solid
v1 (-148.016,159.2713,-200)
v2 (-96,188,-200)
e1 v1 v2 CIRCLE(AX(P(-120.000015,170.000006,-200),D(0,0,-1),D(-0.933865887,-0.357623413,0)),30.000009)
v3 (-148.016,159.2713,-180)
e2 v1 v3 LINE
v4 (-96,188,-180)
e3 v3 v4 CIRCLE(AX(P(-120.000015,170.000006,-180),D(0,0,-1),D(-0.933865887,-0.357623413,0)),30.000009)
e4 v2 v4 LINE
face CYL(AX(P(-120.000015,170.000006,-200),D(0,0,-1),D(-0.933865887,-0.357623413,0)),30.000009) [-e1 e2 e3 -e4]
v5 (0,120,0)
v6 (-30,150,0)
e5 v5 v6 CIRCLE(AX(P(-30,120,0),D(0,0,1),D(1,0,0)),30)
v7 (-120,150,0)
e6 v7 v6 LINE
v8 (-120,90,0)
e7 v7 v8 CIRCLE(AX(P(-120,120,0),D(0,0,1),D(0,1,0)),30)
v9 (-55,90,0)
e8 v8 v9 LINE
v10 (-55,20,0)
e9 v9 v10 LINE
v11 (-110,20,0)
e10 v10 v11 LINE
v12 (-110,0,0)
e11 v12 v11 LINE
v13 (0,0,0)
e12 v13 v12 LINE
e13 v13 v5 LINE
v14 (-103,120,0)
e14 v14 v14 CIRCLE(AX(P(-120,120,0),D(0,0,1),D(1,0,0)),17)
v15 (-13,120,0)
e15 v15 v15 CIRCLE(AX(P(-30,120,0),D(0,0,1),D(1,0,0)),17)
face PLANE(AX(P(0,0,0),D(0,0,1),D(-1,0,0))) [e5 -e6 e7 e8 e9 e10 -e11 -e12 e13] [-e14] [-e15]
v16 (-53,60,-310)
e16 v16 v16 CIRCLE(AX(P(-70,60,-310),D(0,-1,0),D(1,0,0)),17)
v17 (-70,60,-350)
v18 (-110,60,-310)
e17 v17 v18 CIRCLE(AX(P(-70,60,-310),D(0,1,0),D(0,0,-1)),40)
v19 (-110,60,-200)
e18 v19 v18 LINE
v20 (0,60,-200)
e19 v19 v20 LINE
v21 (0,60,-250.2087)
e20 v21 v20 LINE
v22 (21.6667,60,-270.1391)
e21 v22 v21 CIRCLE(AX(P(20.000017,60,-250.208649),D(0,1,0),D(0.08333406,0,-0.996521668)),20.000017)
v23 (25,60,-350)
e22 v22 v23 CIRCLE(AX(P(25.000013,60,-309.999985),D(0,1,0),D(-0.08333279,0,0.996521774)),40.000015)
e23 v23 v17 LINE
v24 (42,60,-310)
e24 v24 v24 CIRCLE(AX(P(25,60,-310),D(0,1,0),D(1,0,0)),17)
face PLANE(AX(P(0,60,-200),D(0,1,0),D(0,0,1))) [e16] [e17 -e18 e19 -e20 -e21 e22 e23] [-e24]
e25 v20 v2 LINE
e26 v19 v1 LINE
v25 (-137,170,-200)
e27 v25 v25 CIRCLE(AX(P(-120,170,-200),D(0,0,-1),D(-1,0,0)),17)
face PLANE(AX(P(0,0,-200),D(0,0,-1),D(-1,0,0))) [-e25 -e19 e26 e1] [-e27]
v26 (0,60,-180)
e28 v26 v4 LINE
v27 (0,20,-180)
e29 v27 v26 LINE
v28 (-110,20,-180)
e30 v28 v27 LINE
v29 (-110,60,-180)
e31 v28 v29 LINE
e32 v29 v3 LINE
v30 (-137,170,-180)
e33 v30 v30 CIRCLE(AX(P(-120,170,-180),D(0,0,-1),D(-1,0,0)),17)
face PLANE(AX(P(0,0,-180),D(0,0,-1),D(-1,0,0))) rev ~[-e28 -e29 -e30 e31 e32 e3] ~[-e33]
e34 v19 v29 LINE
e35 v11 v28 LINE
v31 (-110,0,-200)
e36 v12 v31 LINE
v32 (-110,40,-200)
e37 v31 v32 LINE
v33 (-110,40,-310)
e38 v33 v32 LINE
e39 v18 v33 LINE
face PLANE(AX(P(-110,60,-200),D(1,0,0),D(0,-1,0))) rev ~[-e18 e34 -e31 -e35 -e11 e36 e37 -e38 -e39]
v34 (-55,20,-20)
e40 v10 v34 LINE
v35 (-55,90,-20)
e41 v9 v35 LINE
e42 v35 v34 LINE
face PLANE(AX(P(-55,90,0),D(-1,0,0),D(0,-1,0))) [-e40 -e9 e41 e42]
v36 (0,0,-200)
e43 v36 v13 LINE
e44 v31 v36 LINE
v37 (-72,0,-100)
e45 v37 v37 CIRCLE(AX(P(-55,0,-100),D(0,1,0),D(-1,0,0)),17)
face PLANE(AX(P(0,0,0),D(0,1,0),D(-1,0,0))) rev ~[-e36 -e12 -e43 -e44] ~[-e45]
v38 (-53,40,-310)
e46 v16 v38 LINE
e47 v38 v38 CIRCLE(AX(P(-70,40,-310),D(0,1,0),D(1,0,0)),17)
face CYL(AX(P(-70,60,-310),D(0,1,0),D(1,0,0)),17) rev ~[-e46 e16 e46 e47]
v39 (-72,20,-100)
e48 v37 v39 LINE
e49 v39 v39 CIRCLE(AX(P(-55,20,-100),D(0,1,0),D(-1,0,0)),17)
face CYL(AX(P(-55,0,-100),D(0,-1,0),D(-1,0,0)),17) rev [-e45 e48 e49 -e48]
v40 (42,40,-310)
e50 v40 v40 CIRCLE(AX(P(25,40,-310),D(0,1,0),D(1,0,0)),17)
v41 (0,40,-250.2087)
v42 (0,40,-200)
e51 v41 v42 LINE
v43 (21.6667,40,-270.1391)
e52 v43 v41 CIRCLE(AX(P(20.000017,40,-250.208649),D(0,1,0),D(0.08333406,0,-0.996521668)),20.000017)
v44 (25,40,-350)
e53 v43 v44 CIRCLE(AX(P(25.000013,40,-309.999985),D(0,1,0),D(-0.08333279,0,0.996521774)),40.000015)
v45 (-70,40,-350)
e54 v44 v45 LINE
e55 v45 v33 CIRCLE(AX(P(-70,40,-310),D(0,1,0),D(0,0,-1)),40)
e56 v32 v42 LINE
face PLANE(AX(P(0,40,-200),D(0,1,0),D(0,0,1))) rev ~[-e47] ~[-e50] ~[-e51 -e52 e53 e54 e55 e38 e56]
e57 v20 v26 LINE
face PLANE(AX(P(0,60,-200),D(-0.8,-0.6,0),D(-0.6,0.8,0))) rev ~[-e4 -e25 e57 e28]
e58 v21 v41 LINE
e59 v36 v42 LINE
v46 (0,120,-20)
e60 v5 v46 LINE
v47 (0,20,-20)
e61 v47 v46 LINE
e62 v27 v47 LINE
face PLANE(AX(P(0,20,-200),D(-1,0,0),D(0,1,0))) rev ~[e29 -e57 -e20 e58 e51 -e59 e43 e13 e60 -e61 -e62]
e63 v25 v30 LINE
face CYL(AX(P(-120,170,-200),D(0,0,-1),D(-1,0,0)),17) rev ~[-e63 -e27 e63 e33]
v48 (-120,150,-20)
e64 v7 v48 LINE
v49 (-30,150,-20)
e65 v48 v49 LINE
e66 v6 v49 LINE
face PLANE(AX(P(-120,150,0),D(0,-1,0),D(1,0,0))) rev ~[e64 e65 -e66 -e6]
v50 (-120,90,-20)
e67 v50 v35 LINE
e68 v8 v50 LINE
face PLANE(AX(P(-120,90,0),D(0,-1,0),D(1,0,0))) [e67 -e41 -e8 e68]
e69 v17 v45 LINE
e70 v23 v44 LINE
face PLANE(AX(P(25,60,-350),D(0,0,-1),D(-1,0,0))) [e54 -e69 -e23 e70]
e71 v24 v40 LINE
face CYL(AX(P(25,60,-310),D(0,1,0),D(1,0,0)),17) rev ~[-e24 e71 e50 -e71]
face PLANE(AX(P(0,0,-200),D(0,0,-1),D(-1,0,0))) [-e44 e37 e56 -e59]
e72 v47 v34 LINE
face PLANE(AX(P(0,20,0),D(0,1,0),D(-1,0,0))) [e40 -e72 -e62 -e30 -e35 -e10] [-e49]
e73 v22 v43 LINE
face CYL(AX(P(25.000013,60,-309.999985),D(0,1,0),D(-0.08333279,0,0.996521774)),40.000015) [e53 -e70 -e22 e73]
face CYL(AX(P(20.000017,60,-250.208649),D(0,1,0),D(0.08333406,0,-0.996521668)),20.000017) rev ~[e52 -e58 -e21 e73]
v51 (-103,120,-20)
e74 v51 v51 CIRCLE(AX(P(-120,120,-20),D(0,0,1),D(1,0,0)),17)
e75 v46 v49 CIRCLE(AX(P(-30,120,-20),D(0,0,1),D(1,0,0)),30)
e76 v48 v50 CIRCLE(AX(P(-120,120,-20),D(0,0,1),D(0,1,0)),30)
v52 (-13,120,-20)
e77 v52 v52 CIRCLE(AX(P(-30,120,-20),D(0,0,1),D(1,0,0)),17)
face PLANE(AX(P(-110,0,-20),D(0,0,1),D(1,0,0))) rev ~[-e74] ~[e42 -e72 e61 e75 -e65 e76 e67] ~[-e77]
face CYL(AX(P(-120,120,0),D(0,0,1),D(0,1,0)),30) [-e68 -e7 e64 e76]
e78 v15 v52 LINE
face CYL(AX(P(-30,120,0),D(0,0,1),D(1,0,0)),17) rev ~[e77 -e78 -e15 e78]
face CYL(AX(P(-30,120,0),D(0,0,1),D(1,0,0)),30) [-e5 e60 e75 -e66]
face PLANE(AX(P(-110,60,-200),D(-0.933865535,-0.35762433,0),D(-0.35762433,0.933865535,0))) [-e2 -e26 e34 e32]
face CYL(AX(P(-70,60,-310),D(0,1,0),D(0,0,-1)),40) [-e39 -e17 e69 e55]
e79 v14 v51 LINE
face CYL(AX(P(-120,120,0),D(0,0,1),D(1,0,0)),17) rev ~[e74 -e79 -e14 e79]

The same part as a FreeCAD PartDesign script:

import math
import FreeCAD as App
import Part
import Sketcher


def add_polygon(sketch, points):
    """Adds a closed chain of lines whose ends are joined by coincident constraints."""
    first, n = sketch.GeometryCount, len(points)
    for a, b in zip(points, points[1:] + points[:1]):
        sketch.addGeometry(Part.LineSegment(App.Vector(*a, 0), App.Vector(*b, 0)), False)
    for i in range(n):
        sketch.addConstraint(Sketcher.Constraint("Coincident", first + i, 2, first + (i + 1) % n, 1))

doc = App.newDocument("Part")
body = doc.addObject("PartDesign::Body", "Body")

# Sketch on XZ plane
sketch1 = body.newObject("Sketcher::SketchObject", "Sketch")
sketch1.AttachmentSupport = (doc.getObject("XZ_Plane"), [""])
sketch1.MapMode = "FlatFace"
add_polygon(sketch1, [(-110, 0), (0, 0), (0, -200), (-110, -200)])  # lines 0-3
sketch1.addGeometry(Part.Circle(App.Vector(-55, -100, 0), App.Vector(0, 0, 1), 17), False)  # 4
sketch1.addConstraint([
    Sketcher.Constraint("Horizontal", 0),
    Sketcher.Constraint("Vertical", 1),
    Sketcher.Constraint("Horizontal", 2),
    Sketcher.Constraint("Vertical", 3),
    Sketcher.Constraint("Coincident", 0, 2, -1, 1),
    Sketcher.Constraint("DistanceX", 0, 1, 0, 2, 110.0),
    Sketcher.Constraint("DistanceY", 1, 2, 1, 1, 200.0),
    Sketcher.Constraint("Diameter", 4, 34.0),
    Sketcher.Constraint("DistanceX", 4, 3, -1, 1, 55.0),
    Sketcher.Constraint("DistanceY", 4, 3, -1, 1, 100.0),
])
pad1 = body.newObject("PartDesign::Pad", "Pad")
pad1.Profile = sketch1
pad1.Length = 20
pad1.Reversed = True

# Sketch on XY plane
sketch2 = body.newObject("Sketcher::SketchObject", "Sketch001")
sketch2.AttachmentSupport = (doc.getObject("XY_Plane"), [""])
sketch2.MapMode = "FlatFace"
sketch2.addGeometry([
    Part.LineSegment(App.Vector(-55, 20, 0), App.Vector(0, 20, 0)),  # 0
    Part.LineSegment(App.Vector(0, 20, 0), App.Vector(0, 120, 0)),  # 1
    Part.ArcOfCircle(Part.Circle(App.Vector(-30, 120, 0), App.Vector(0, 0, 1), 30), math.radians(0), math.radians(90)),  # 2
    Part.LineSegment(App.Vector(-30, 150, 0), App.Vector(-120, 150, 0)),  # 3
    Part.ArcOfCircle(Part.Circle(App.Vector(-120, 120, 0), App.Vector(0, 0, 1), 30), math.radians(90), math.radians(270)),  # 4
    Part.LineSegment(App.Vector(-120, 90, 0), App.Vector(-55, 90, 0)),  # 5
    Part.LineSegment(App.Vector(-55, 90, 0), App.Vector(-55, 20, 0)),  # 6
    Part.Circle(App.Vector(-120, 120, 0), App.Vector(0, 0, 1), 17),  # 7
    Part.Circle(App.Vector(-30, 120, 0), App.Vector(0, 0, 1), 17),  # 8
], False)
sketch2.addConstraint([
    Sketcher.Constraint("Coincident", 0, 2, 1, 1),
    Sketcher.Constraint("Tangent", 1, 2, 2, 1),
    Sketcher.Constraint("Tangent", 2, 2, 3, 1),
    Sketcher.Constraint("Tangent", 3, 2, 4, 1),
    Sketcher.Constraint("Tangent", 4, 2, 5, 1),
    Sketcher.Constraint("Coincident", 5, 2, 6, 1),
    Sketcher.Constraint("Coincident", 6, 2, 0, 1),
    Sketcher.Constraint("Horizontal", 0),
    Sketcher.Constraint("Vertical", 1),
    Sketcher.Constraint("Horizontal", 3),
    Sketcher.Constraint("Horizontal", 5),
    Sketcher.Constraint("Vertical", 6),
    Sketcher.Constraint("Coincident", 7, 3, 4, 3),
    Sketcher.Constraint("Coincident", 8, 3, 2, 3),
    Sketcher.Constraint("Equal", 2, 4),
    Sketcher.Constraint("Equal", 7, 8),
    Sketcher.Constraint("PointOnObject", 0, 2, -2),
    Sketcher.Constraint("DistanceX", 0, 1, 0, 2, 55.0),
    Sketcher.Constraint("Diameter", 7, 34.0),
    Sketcher.Constraint("Radius", 2, 30.0),
    Sketcher.Constraint("DistanceX", 3, 2, 3, 1, 90.0),
    Sketcher.Constraint("DistanceY", 1, 1, 1, 2, 100.0),
    Sketcher.Constraint("DistanceY", -1, 1, 2, 3, 120.0),
])
pad2 = body.newObject("PartDesign::Pad", "Pad001")
pad2.Profile = sketch2
pad2.Length = 20
pad2.Reversed = True

# Sketch on XY plane
sketch3 = body.newObject("Sketcher::SketchObject", "Sketch002")
sketch3.AttachmentSupport = (doc.getObject("XY_Plane"), [""])
sketch3.MapMode = "FlatFace"
sketch3.AttachmentOffset = App.Placement(App.Vector(0, 0, -200), App.Rotation())
add_polygon(sketch3, [(0, 20), (-110, 20), (-110, 60), (0, 60)])  # lines 0-3
sketch3.addConstraint([
    Sketcher.Constraint("Horizontal", 0),
    Sketcher.Constraint("Vertical", 1),
    Sketcher.Constraint("Horizontal", 2),
    Sketcher.Constraint("Vertical", 3),
    Sketcher.Constraint("PointOnObject", 2, 2, -2),
    Sketcher.Constraint("DistanceX", 0, 2, 0, 1, 110.0),
    Sketcher.Constraint("DistanceY", 1, 1, 1, 2, 40.0),
    Sketcher.Constraint("DistanceY", -1, 1, 0, 2, 20.0),
])
pad3 = body.newObject("PartDesign::Pad", "Pad002")
pad3.Profile = sketch3
pad3.Length = 20

# Sketch on XY plane
sketch4 = body.newObject("Sketcher::SketchObject", "Sketch003")
sketch4.AttachmentSupport = (doc.getObject("XY_Plane"), [""])
sketch4.MapMode = "FlatFace"
sketch4.AttachmentOffset = App.Placement(App.Vector(0, 0, -200), App.Rotation())
sketch4.addGeometry([
    Part.LineSegment(App.Vector(-110, 60, 0), App.Vector(-148, 159, 0)),  # 0
    Part.ArcOfCircle(Part.Circle(App.Vector(-120, 170, 0), App.Vector(0, 0, 1), 30), math.radians(37), math.radians(201)),  # 1
    Part.LineSegment(App.Vector(-96, 188, 0), App.Vector(0, 60, 0)),  # 2
    Part.LineSegment(App.Vector(0, 60, 0), App.Vector(-110, 60, 0)),  # 3
    Part.Circle(App.Vector(-120, 170, 0), App.Vector(0, 0, 1), 17),  # 4
], False)
sketch4.addConstraint([
    Sketcher.Constraint("Tangent", 0, 2, 1, 2),
    Sketcher.Constraint("Tangent", 1, 1, 2, 1),
    Sketcher.Constraint("Coincident", 2, 2, 3, 1),
    Sketcher.Constraint("Coincident", 3, 2, 0, 1),
    Sketcher.Constraint("Horizontal", 3),
    Sketcher.Constraint("Coincident", 4, 3, 1, 3),
    Sketcher.Constraint("PointOnObject", 2, 2, -2),
    Sketcher.Constraint("Diameter", 4, 34.0),
    Sketcher.Constraint("Radius", 1, 30.0),
    Sketcher.Constraint("DistanceX", 3, 2, 3, 1, 110.0),
    Sketcher.Constraint("Distance", 2, 160.0),
    Sketcher.Constraint("DistanceX", 1, 3, -1, 1, 120.0),
    Sketcher.Constraint("DistanceY", -1, 1, 1, 3, 170.0),
])
pad4 = body.newObject("PartDesign::Pad", "Pad003")
pad4.Profile = sketch4
pad4.Length = 20

# Sketch on YZ plane
sketch5 = body.newObject("Sketcher::SketchObject", "Sketch004")
sketch5.AttachmentSupport = (doc.getObject("YZ_Plane"), [""])
sketch5.MapMode = "FlatFace"
add_polygon(sketch5, [(40, -180), (40, -310), (60, -310), (60, -180)])  # lines 0-3
sketch5.addConstraint([
    Sketcher.Constraint("Vertical", 0),
    Sketcher.Constraint("Horizontal", 1),
    Sketcher.Constraint("Vertical", 2),
    Sketcher.Constraint("Horizontal", 3),
    Sketcher.Constraint("DistanceX", 1, 1, 1, 2, 20.0),
    Sketcher.Constraint("DistanceY", 0, 2, 0, 1, 130.0),
    Sketcher.Constraint("DistanceX", -1, 1, 0, 2, 40.0),
    Sketcher.Constraint("DistanceY", 0, 2, -1, 1, 310.0),
])
pad5 = body.newObject("PartDesign::Pad", "Pad004")
pad5.Profile = sketch5
pad5.Length = 110
pad5.Reversed = True

# Sketch on XZ plane
sketch6 = body.newObject("Sketcher::SketchObject", "Sketch005")
sketch6.AttachmentSupport = (doc.getObject("XZ_Plane"), [""])
sketch6.MapMode = "FlatFace"
sketch6.AttachmentOffset = App.Placement(App.Vector(0, 0, -60), App.Rotation())
sketch6.addGeometry([
    Part.LineSegment(App.Vector(-110, -250, 0), App.Vector(0, -250, 0)),  # 0
    Part.ArcOfCircle(Part.Circle(App.Vector(20, -250, 0), App.Vector(0, 0, 1), 20), math.radians(180), math.radians(275)),  # 1
    Part.ArcOfCircle(Part.Circle(App.Vector(25, -310, 0), App.Vector(0, 0, 1), 40), math.radians(-90), math.radians(95)),  # 2
    Part.LineSegment(App.Vector(25, -350, 0), App.Vector(-70, -350, 0)),  # 3
    Part.ArcOfCircle(Part.Circle(App.Vector(-70, -310, 0), App.Vector(0, 0, 1), 40), math.radians(180), math.radians(270)),  # 4
    Part.LineSegment(App.Vector(-110, -310, 0), App.Vector(-110, -250, 0)),  # 5
    Part.Circle(App.Vector(-70, -310, 0), App.Vector(0, 0, 1), 17),  # 6
    Part.Circle(App.Vector(25, -310, 0), App.Vector(0, 0, 1), 17),  # 7
], False)
sketch6.addConstraint([
    Sketcher.Constraint("Coincident", 0, 2, 1, 1),
    Sketcher.Constraint("Tangent", 1, 2, 2, 2),
    Sketcher.Constraint("Tangent", 2, 1, 3, 1),
    Sketcher.Constraint("Tangent", 3, 2, 4, 2),
    Sketcher.Constraint("Tangent", 4, 1, 5, 1),
    Sketcher.Constraint("Coincident", 5, 2, 0, 1),
    Sketcher.Constraint("Horizontal", 0),
    Sketcher.Constraint("Horizontal", 3),
    Sketcher.Constraint("Vertical", 5),
    Sketcher.Constraint("Coincident", 6, 3, 4, 3),
    Sketcher.Constraint("Coincident", 7, 3, 2, 3),
    Sketcher.Constraint("Equal", 2, 4),
    Sketcher.Constraint("Equal", 6, 7),
    Sketcher.Constraint("PointOnObject", 0, 2, -2),
    Sketcher.Constraint("Horizontal", 1, 3, 0, 2),
    Sketcher.Constraint("Radius", 1, 20.0),
    Sketcher.Constraint("Diameter", 6, 34.0),
    Sketcher.Constraint("Radius", 2, 40.0),
    Sketcher.Constraint("DistanceX", 0, 1, 0, 2, 110.0),
    Sketcher.Constraint("DistanceX", 3, 2, 3, 1, 95.0),
    Sketcher.Constraint("DistanceY", 2, 3, -1, 1, 310.0),
])
pad6 = body.newObject("PartDesign::Pad", "Pad005")
pad6.Profile = sketch6
pad6.Length = 20

# Sketch on XZ plane
sketch7 = body.newObject("Sketcher::SketchObject", "Sketch006")
sketch7.AttachmentSupport = (doc.getObject("XZ_Plane"), [""])
sketch7.MapMode = "FlatFace"
sketch7.AttachmentOffset = App.Placement(App.Vector(0, 0, -60), App.Rotation())
sketch7.addGeometry([
    Part.ArcOfCircle(Part.Circle(App.Vector(-70, -310, 0), App.Vector(0, 0, 1), 17), math.radians(0), math.radians(180)),
    Part.LineSegment(App.Vector(-53, -310, 0), App.Vector(-87, -310, 0)),
], False)
sketch7.addConstraint([
    Sketcher.Constraint("Coincident", 0, 1, 1, 1),
    Sketcher.Constraint("Coincident", 1, 2, 0, 2),
    Sketcher.Constraint("Horizontal", 1),
    Sketcher.Constraint("Radius", 0, 17.0),
    Sketcher.Constraint("DistanceX", 0, 3, -1, 1, 70.0),
    Sketcher.Constraint("DistanceY", 0, 3, -1, 1, 310.0),
    Sketcher.Constraint("DistanceY", 0, 1, -1, 1, 310.0),
])
pocket1 = body.newObject("PartDesign::Pocket", "Pocket")
pocket1.Profile = sketch7
pocket1.Length = 20
pocket1.Reversed = True

doc.recompute()
